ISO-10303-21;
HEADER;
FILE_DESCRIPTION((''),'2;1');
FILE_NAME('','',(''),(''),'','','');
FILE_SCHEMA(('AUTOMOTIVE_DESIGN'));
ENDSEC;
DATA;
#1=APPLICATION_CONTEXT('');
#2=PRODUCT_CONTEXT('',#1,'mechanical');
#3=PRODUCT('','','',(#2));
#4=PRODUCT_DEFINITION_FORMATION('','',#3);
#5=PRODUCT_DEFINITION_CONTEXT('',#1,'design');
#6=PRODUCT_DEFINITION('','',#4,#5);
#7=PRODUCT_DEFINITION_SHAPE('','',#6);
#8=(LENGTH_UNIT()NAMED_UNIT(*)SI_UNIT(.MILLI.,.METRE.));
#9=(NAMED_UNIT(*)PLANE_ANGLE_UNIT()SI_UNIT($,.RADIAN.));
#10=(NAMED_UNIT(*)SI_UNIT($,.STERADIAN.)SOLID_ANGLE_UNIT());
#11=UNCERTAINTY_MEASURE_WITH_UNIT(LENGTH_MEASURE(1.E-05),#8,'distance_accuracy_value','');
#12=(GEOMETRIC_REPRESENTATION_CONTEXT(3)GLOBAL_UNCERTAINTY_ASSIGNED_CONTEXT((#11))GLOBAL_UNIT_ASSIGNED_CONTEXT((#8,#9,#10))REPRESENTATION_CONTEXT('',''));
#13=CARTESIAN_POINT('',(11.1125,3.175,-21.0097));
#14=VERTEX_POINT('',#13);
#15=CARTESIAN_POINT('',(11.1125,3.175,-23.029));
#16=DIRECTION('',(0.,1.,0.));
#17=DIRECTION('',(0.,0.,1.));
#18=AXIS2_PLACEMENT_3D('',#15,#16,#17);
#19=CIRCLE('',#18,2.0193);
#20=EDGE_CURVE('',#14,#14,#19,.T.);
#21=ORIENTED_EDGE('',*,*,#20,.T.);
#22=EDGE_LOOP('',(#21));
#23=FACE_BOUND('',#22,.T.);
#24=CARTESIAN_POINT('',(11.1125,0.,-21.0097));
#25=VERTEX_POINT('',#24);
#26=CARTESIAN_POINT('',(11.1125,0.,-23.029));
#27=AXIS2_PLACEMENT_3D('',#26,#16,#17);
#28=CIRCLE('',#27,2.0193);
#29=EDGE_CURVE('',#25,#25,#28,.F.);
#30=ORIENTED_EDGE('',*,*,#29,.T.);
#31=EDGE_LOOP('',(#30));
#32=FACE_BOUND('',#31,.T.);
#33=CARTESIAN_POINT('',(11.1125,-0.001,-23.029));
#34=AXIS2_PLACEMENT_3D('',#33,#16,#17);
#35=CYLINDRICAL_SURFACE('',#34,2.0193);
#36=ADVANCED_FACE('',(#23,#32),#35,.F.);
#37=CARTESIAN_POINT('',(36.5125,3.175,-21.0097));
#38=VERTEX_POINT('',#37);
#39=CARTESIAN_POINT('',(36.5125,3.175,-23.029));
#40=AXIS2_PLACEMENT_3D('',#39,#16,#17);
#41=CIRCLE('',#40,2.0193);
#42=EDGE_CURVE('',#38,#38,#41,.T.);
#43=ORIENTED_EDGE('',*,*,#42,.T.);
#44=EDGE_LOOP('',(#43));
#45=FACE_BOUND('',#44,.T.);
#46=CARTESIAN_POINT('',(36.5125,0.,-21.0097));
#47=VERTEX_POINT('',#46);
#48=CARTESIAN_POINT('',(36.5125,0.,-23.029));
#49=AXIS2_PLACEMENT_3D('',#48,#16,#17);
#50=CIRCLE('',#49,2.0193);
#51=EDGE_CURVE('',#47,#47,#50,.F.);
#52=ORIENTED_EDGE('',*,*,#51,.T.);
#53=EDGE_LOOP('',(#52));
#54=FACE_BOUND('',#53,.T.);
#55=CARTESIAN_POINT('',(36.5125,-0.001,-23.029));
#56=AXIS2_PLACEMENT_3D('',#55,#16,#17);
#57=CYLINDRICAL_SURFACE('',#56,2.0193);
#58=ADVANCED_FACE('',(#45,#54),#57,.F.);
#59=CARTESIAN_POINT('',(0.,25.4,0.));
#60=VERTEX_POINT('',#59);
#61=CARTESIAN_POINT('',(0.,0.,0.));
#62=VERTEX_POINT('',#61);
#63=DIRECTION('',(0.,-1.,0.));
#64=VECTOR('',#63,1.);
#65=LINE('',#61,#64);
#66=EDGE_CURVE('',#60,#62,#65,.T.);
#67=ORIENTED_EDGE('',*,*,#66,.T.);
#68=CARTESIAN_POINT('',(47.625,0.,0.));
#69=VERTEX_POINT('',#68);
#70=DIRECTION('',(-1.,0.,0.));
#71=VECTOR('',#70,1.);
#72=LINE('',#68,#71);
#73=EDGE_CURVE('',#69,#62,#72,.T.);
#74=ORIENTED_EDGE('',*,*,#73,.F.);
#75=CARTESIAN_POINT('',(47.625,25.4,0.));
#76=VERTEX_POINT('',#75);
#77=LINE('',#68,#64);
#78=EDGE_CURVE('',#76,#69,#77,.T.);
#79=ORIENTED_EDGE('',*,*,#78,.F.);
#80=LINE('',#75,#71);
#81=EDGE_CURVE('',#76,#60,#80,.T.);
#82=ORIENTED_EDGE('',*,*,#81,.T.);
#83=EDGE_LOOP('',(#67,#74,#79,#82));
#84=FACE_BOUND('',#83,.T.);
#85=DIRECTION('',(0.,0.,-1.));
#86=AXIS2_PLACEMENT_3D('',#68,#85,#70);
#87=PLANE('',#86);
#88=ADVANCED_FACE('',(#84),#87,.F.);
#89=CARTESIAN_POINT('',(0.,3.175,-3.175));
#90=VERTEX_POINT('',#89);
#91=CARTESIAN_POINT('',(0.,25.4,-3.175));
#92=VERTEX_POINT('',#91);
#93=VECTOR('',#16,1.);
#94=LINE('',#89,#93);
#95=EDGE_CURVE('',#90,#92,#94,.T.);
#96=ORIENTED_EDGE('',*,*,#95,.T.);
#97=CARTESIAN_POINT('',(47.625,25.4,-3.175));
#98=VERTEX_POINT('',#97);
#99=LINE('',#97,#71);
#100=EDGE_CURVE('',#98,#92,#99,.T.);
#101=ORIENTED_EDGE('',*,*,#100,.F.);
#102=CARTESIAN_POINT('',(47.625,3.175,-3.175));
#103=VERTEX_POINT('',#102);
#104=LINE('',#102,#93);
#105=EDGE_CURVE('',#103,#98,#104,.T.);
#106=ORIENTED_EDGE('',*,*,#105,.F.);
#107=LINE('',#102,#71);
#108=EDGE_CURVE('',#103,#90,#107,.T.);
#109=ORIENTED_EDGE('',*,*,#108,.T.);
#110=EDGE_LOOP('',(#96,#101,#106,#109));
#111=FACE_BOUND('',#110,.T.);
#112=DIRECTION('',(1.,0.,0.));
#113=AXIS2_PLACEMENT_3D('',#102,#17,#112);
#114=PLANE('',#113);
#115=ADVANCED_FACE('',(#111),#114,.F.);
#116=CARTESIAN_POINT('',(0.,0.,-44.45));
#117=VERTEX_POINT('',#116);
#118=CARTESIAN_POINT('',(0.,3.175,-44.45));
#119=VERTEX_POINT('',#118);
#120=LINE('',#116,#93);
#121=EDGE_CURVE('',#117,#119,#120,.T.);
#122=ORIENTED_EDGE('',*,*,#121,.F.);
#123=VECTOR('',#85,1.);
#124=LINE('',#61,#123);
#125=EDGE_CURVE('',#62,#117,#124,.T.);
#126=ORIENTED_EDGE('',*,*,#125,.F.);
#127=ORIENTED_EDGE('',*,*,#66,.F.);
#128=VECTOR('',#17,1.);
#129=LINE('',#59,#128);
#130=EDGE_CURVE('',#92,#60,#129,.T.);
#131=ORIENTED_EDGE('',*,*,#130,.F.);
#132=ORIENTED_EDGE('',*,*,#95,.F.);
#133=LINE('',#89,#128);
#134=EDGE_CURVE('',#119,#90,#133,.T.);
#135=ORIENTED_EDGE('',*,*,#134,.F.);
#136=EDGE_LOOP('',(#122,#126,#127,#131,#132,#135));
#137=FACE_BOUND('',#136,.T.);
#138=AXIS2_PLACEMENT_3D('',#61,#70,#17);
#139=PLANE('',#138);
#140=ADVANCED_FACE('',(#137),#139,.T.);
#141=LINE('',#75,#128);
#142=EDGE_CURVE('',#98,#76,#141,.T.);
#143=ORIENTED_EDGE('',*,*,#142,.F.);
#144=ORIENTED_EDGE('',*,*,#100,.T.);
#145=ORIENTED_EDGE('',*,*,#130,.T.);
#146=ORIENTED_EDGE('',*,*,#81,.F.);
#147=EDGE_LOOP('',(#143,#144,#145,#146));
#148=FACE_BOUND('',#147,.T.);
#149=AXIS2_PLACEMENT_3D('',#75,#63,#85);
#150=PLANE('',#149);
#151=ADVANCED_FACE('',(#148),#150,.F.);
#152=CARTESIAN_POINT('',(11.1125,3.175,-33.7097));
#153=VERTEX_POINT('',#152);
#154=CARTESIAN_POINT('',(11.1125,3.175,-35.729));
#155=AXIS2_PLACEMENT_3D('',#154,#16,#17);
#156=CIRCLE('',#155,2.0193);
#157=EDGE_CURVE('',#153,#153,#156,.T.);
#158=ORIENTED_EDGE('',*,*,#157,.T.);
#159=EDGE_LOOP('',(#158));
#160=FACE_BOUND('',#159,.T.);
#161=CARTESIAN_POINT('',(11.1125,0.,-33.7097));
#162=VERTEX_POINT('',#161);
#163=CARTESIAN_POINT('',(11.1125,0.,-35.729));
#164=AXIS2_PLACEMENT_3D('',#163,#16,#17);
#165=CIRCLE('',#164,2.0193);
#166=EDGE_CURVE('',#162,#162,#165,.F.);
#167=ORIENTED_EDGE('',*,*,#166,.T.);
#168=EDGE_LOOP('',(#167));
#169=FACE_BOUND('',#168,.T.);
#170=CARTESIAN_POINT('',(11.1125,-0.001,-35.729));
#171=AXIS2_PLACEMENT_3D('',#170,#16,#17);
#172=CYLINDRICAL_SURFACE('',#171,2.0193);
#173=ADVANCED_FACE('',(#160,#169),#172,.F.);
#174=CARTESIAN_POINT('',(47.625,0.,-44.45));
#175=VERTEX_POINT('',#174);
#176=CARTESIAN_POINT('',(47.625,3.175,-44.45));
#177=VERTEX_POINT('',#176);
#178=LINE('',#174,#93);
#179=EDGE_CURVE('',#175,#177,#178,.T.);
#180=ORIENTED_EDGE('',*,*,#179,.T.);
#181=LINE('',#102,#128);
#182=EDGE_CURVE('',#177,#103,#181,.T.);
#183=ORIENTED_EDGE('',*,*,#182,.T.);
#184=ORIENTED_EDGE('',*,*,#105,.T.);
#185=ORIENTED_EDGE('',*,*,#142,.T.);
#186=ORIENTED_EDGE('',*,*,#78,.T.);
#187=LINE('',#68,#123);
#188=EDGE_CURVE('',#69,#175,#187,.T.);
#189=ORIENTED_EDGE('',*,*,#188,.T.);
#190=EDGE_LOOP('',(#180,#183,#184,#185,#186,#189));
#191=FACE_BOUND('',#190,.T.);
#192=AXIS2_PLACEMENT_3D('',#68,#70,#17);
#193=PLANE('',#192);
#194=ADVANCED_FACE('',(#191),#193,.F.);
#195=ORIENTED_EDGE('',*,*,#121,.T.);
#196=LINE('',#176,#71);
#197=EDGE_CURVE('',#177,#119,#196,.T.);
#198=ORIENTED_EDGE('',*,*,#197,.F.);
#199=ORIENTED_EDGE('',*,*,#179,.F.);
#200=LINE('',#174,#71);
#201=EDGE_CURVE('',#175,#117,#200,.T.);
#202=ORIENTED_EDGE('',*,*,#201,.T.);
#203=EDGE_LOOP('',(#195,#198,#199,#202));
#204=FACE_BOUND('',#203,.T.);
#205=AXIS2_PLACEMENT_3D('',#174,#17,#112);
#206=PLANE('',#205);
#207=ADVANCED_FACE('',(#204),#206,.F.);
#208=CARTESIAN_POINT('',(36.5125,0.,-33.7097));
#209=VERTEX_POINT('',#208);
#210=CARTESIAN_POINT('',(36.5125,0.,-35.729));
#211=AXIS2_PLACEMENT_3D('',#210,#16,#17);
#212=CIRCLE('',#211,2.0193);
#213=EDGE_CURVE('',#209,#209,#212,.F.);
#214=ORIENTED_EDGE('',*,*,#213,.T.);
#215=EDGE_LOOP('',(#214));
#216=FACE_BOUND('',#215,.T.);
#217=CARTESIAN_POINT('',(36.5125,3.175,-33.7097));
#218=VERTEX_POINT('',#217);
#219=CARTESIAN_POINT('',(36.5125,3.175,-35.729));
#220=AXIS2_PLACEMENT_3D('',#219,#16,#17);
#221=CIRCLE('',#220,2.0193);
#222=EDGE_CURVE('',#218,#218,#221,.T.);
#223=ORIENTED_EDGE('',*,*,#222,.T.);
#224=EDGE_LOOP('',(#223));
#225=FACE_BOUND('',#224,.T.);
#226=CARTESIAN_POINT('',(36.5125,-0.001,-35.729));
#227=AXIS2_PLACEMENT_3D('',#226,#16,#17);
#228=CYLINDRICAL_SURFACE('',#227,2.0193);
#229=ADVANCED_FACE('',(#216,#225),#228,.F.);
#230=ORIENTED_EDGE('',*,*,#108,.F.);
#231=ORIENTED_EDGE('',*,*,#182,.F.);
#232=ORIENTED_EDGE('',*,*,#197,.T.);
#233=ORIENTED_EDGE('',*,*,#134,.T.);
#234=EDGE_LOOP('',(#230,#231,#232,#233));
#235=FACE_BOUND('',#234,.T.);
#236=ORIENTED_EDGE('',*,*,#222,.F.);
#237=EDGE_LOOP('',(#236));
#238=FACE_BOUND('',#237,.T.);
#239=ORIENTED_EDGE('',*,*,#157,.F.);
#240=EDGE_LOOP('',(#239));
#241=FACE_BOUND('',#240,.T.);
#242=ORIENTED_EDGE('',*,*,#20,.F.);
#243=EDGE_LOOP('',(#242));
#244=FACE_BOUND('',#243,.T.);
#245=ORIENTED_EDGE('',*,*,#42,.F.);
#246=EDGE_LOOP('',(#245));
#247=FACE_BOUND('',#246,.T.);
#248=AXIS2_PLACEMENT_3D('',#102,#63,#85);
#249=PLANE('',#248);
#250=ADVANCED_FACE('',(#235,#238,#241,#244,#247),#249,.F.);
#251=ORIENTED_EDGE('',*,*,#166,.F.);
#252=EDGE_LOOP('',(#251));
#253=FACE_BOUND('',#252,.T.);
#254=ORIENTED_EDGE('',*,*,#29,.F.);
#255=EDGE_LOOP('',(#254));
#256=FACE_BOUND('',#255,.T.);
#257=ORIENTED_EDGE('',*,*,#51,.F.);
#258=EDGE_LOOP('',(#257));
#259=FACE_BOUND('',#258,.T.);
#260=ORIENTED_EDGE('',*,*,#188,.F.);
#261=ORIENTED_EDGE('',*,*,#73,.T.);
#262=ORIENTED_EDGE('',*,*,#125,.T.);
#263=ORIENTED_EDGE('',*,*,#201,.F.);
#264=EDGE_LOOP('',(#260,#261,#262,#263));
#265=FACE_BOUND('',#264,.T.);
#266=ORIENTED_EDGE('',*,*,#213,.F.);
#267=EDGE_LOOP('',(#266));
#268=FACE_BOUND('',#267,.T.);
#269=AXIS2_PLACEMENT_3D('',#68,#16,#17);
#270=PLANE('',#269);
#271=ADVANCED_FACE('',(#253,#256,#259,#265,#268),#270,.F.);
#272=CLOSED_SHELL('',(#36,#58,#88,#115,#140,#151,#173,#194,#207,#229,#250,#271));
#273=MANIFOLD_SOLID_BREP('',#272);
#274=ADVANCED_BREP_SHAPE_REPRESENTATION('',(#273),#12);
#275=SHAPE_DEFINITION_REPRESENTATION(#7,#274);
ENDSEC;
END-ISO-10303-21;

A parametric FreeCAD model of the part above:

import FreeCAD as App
import Part
import Sketcher
from FreeCAD import Vector
Q = App.Units.Quantity

doc = App.newDocument("Part")
body = doc.addObject("PartDesign::Body", "Body")

# Sketch on YZ plane
sketch1 = body.newObject("Sketcher::SketchObject", "Sketch")
sketch1.AttachmentSupport = (doc.getObject("YZ_Plane"), [""])
sketch1.MapMode = "FlatFace"
sketch1.addGeometry(Part.LineSegment(Vector(3.2, -3.2, 0), Vector(25.4, -3.2, 0)), False)
sketch1.addGeometry(Part.LineSegment(Vector(25.4, -3.2, 0), Vector(25.4, 0, 0)), False)
sketch1.addGeometry(Part.LineSegment(Vector(25.4, 0, 0), Vector(0, 0, 0)), False)
sketch1.addGeometry(Part.LineSegment(Vector(0, 0, 0), Vector(0, -44.5, 0)), False)
sketch1.addGeometry(Part.LineSegment(Vector(0, -44.5, 0), Vector(3.2, -44.5, 0)), False)
sketch1.addGeometry(Part.LineSegment(Vector(3.2, -44.5, 0), Vector(3.2, -3.2, 0)), False)
sketch1.addConstraint(Sketcher.Constraint("Coincident", 0, 2, 1, 1))
sketch1.addConstraint(Sketcher.Constraint("Coincident", 1, 2, 2, 1))
sketch1.addConstraint(Sketcher.Constraint("Coincident", 2, 2, 3, 1))
sketch1.addConstraint(Sketcher.Constraint("Coincident", 3, 2, 4, 1))
sketch1.addConstraint(Sketcher.Constraint("Coincident", 4, 2, 5, 1))
sketch1.addConstraint(Sketcher.Constraint("Coincident", 5, 2, 0, 1))
sketch1.addConstraint(Sketcher.Constraint("Horizontal", 0))
sketch1.addConstraint(Sketcher.Constraint("Vertical", 1))
sketch1.addConstraint(Sketcher.Constraint("Horizontal", 2))
sketch1.addConstraint(Sketcher.Constraint("Vertical", 3))
sketch1.addConstraint(Sketcher.Constraint("Horizontal", 4))
sketch1.addConstraint(Sketcher.Constraint("Vertical", 5))
sketch1.addConstraint(Sketcher.Constraint("Coincident", 2, 2, -1, 1))
sketch1.addConstraint(Sketcher.Constraint("Equal", 4, 1))
sketch1.addConstraint(Sketcher.Constraint("DistanceX", 2, 2, 2, 1, Q("1 in")))
sketch1.addConstraint(Sketcher.Constraint("DistanceY", 3, 2, 3, 1, Q("1.75 in")))
sketch1.addConstraint(Sketcher.Constraint("DistanceX", 0, 1, 0, 2, Q("0.875 in")))
pad1 = body.newObject("PartDesign::Pad", "Pad")
pad1.Profile = sketch1
pad1.Length = Q("1.875 in")

# Sketch on XZ plane
sketch2 = body.newObject("Sketcher::SketchObject", "Sketch001")
sketch2.AttachmentSupport = (doc.getObject("XZ_Plane"), [""])
sketch2.MapMode = "FlatFace"
sketch2.AttachmentOffset = App.Placement(Vector(0, 0, -0.125 * 25.4), App.Rotation())
sketch2.addGeometry(Part.Circle(Vector(11.1, -23, 0), Vector(0, 0, 1), 2), False)
sketch2.addConstraint(Sketcher.Constraint("Diameter", 0, Q("0.159 in")))
sketch2.addConstraint(Sketcher.Constraint("DistanceX", -1, 1, 0, 3, Q("0.4375 in")))
sketch2.addConstraint(Sketcher.Constraint("DistanceY", 0, 3, -1, 1, Q("23.029 mm")))
pocket1 = body.newObject("PartDesign::Pocket", "Pocket")
pocket1.Profile = sketch2
pocket1.Type = "UpToFirst"
pocket1.Reversed = True

# Sketch on XZ plane
sketch3 = body.newObject("Sketcher::SketchObject", "Sketch002")
sketch3.AttachmentSupport = (doc.getObject("XZ_Plane"), [""])
sketch3.MapMode = "FlatFace"
sketch3.AttachmentOffset = App.Placement(Vector(0, 0, -0.125 * 25.4), App.Rotation())
sketch3.addGeometry(Part.Circle(Vector(11.1, -35.7, 0), Vector(0, 0, 1), 2), False)
sketch3.addConstraint(Sketcher.Constraint("Diameter", 0, Q("0.159 in")))
sketch3.addConstraint(Sketcher.Constraint("DistanceX", -1, 1, 0, 3, Q("0.4375 in")))
sketch3.addConstraint(Sketcher.Constraint("DistanceY", 0, 3, -1, 1, Q("35.729 mm")))
pocket2 = body.newObject("PartDesign::Pocket", "Pocket001")
pocket2.Profile = sketch3
pocket2.Type = "UpToFirst"
pocket2.Reversed = True

# Sketch on XZ plane
sketch4 = body.newObject("Sketcher::SketchObject", "Sketch003")
sketch4.AttachmentSupport = (doc.getObject("XZ_Plane"), [""])
sketch4.MapMode = "FlatFace"
sketch4.AttachmentOffset = App.Placement(Vector(0, 0, -0.125 * 25.4), App.Rotation())
sketch4.addGeometry(Part.Circle(Vector(36.5, -23, 0), Vector(0, 0, 1), 2), False)
sketch4.addConstraint(Sketcher.Constraint("Diameter", 0, Q("0.159 in")))
sketch4.addConstraint(Sketcher.Constraint("DistanceX", -1, 1, 0, 3, Q("1.4375 in")))
sketch4.addConstraint(Sketcher.Constraint("DistanceY", 0, 3, -1, 1, Q("23.029 mm")))
pocket3 = body.newObject("PartDesign::Pocket", "Pocket002")
pocket3.Profile = sketch4
pocket3.Type = "UpToFirst"
pocket3.Reversed = True

# Sketch on XZ plane
sketch5 = body.newObject("Sketcher::SketchObject", "Sketch004")
sketch5.AttachmentSupport = (doc.getObject("XZ_Plane"), [""])
sketch5.MapMode = "FlatFace"
sketch5.AttachmentOffset = App.Placement(Vector(0, 0, -0.125 * 25.4), App.Rotation())
sketch5.addGeometry(Part.Circle(Vector(36.5, -35.7, 0), Vector(0, 0, 1), 2), False)
sketch5.addConstraint(Sketcher.Constraint("Diameter", 0, Q("0.159 in")))
sketch5.addConstraint(Sketcher.Constraint("DistanceX", -1, 1, 0, 3, Q("1.4375 in")))
sketch5.addConstraint(Sketcher.Constraint("DistanceY", 0, 3, -1, 1, Q("35.729 mm")))
pocket4 = body.newObject("PartDesign::Pocket", "Pocket003")
pocket4.Profile = sketch5
pocket4.Type = "UpToFirst"
pocket4.Reversed = True

doc.recompute()
